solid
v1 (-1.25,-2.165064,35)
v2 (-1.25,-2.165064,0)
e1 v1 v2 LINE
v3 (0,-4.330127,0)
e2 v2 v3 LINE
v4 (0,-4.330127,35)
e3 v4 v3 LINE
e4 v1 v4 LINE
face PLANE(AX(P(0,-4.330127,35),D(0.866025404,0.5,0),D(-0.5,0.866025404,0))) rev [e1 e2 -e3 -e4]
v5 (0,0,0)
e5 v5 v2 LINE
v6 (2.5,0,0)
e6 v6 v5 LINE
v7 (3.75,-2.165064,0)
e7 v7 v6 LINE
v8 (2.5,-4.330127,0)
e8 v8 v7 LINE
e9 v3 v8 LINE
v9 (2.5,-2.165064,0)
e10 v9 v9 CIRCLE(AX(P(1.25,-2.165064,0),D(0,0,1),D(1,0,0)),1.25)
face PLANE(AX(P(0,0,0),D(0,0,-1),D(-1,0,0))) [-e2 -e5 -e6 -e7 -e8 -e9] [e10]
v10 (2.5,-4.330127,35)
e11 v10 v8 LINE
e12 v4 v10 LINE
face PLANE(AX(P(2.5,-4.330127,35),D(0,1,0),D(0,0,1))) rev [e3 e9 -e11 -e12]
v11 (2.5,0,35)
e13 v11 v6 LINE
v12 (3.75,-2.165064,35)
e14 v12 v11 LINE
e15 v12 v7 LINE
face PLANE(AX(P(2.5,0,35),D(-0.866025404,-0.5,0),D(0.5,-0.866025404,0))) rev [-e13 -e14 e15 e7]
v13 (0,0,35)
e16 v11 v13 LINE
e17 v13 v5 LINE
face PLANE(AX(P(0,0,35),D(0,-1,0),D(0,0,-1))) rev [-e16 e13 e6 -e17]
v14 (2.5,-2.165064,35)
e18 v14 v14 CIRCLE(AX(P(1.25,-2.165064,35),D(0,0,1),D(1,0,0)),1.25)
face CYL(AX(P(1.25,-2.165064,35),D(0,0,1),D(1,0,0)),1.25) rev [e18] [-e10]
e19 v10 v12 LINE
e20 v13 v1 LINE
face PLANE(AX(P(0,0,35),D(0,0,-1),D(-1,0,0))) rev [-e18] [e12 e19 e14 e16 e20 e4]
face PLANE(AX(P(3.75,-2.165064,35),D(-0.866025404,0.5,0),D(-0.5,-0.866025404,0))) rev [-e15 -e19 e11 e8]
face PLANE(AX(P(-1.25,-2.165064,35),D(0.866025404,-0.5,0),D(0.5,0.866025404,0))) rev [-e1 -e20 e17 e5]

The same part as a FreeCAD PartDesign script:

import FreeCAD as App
import Part
import Sketcher

V = App.Vector
Q = App.Units.Quantity


def add_polygon(sketch, points):
    """Adds a closed chain of lines whose ends are joined by coincident constraints."""
    first, n = sketch.GeometryCount, len(points)
    for a, b in zip(points, points[1:] + points[:1]):
        sketch.addGeometry(Part.LineSegment(App.Vector(*a, 0), App.Vector(*b, 0)), False)
    for i in range(n):
        sketch.addConstraint(Sketcher.Constraint("Coincident", first + i, 2, first + (i + 1) % n, 1))

doc = App.newDocument("Part")
params = doc.addObject("Spreadsheet::Sheet", "Params")
for row, (alias, value) in enumerate([
    ("sketch1_width", "2.5 mm"),
    ("pad1_length", "35 mm"),
    ("sketch2_diameter", "2.5 mm"),
    ("hole_diameter", "2.5 mm"),
], start=1):
    params.set(f"A{row}", alias)
    params.set(f"B{row}", "=" + value)
    params.setAlias(f"B{row}", alias)

body = doc.addObject("PartDesign::Body", "Body")

# Sketch on XY plane
sketch1 = doc.addObject("Sketcher::SketchObject", "Sketch")
body.addObject(sketch1)
sketch1.AttachmentSupport = (doc.XY_Plane, [""])
sketch1.MapMode = "FlatFace"
add_polygon(sketch1, [(2.5, 0), (0, 0), (-1.2, -2.2), (0, -4.3), (2.5, -4.3), (3.8, -2.2)])  # lines 0-5
sketch1.addConstraint(Sketcher.Constraint("Horizontal", 0))
sketch1.addConstraint(Sketcher.Constraint("Horizontal", 3))
sketch1.addConstraint(Sketcher.Constraint("Coincident", 0, 2, -1, 1))
sketch1.addConstraint(Sketcher.Constraint("PointOnObject", 2, 2, -2))
sketch1.addConstraint(Sketcher.Constraint("Parallel", 1, 4))
sketch1.addConstraint(Sketcher.Constraint("Parallel", 2, 5))
sketch1.addConstraint(Sketcher.Constraint("Horizontal", 1, 2, 4, 2))
sketch1.addConstraint(Sketcher.Constraint("Vertical", 3, 2, 5, 2))
sketch1.addConstraint(Sketcher.Constraint("Angle", 1, Q("-120 deg")))
sketch1.addConstraint(Sketcher.Constraint("DistanceX", 0, 2, 0, 1, 2.5))
sketch1.addConstraint(Sketcher.Constraint("DistanceX", 1, 2, 4, 2, 5.0))
sketch1.setExpression("Constraints[15]", "Params.sketch1_width")
pad1 = doc.addObject("PartDesign::Pad", "Pad")
body.addObject(pad1)
pad1.Profile = sketch1
pad1.setExpression("Length", "Params.pad1_length")

# Sketch on XY plane
sketch2 = doc.addObject("Sketcher::SketchObject", "Sketch001")
body.addObject(sketch2)
sketch2.AttachmentSupport = (doc.XY_Plane, [""])
sketch2.MapMode = "FlatFace"
sketch2.AttachmentOffset = App.Placement(V(0, 0, 35), App.Rotation())
sketch2.addGeometry(Part.Circle(V(1.2, -2.2, 0), V(0, 0, 1), 1.2), False)
sketch2.addConstraint(Sketcher.Constraint("Diameter", 0, 2.5))
sketch2.addConstraint(Sketcher.Constraint("DistanceX", -1, 1, 0, 3, 1.25))
sketch2.addConstraint(Sketcher.Constraint("DistanceY", 0, 3, -1, 1, 2.165064))
sketch2.setExpression("Constraints[0]", "Params.sketch2_diameter")
doc.recompute()
hole = doc.addObject("PartDesign::Hole", "Hole")
body.addObject(hole)
hole.Profile = sketch2
hole.ThreadType = "None"
hole.setExpression("Diameter", "Params.hole_diameter")
hole.DepthType = "ThroughAll"

doc.recompute()
